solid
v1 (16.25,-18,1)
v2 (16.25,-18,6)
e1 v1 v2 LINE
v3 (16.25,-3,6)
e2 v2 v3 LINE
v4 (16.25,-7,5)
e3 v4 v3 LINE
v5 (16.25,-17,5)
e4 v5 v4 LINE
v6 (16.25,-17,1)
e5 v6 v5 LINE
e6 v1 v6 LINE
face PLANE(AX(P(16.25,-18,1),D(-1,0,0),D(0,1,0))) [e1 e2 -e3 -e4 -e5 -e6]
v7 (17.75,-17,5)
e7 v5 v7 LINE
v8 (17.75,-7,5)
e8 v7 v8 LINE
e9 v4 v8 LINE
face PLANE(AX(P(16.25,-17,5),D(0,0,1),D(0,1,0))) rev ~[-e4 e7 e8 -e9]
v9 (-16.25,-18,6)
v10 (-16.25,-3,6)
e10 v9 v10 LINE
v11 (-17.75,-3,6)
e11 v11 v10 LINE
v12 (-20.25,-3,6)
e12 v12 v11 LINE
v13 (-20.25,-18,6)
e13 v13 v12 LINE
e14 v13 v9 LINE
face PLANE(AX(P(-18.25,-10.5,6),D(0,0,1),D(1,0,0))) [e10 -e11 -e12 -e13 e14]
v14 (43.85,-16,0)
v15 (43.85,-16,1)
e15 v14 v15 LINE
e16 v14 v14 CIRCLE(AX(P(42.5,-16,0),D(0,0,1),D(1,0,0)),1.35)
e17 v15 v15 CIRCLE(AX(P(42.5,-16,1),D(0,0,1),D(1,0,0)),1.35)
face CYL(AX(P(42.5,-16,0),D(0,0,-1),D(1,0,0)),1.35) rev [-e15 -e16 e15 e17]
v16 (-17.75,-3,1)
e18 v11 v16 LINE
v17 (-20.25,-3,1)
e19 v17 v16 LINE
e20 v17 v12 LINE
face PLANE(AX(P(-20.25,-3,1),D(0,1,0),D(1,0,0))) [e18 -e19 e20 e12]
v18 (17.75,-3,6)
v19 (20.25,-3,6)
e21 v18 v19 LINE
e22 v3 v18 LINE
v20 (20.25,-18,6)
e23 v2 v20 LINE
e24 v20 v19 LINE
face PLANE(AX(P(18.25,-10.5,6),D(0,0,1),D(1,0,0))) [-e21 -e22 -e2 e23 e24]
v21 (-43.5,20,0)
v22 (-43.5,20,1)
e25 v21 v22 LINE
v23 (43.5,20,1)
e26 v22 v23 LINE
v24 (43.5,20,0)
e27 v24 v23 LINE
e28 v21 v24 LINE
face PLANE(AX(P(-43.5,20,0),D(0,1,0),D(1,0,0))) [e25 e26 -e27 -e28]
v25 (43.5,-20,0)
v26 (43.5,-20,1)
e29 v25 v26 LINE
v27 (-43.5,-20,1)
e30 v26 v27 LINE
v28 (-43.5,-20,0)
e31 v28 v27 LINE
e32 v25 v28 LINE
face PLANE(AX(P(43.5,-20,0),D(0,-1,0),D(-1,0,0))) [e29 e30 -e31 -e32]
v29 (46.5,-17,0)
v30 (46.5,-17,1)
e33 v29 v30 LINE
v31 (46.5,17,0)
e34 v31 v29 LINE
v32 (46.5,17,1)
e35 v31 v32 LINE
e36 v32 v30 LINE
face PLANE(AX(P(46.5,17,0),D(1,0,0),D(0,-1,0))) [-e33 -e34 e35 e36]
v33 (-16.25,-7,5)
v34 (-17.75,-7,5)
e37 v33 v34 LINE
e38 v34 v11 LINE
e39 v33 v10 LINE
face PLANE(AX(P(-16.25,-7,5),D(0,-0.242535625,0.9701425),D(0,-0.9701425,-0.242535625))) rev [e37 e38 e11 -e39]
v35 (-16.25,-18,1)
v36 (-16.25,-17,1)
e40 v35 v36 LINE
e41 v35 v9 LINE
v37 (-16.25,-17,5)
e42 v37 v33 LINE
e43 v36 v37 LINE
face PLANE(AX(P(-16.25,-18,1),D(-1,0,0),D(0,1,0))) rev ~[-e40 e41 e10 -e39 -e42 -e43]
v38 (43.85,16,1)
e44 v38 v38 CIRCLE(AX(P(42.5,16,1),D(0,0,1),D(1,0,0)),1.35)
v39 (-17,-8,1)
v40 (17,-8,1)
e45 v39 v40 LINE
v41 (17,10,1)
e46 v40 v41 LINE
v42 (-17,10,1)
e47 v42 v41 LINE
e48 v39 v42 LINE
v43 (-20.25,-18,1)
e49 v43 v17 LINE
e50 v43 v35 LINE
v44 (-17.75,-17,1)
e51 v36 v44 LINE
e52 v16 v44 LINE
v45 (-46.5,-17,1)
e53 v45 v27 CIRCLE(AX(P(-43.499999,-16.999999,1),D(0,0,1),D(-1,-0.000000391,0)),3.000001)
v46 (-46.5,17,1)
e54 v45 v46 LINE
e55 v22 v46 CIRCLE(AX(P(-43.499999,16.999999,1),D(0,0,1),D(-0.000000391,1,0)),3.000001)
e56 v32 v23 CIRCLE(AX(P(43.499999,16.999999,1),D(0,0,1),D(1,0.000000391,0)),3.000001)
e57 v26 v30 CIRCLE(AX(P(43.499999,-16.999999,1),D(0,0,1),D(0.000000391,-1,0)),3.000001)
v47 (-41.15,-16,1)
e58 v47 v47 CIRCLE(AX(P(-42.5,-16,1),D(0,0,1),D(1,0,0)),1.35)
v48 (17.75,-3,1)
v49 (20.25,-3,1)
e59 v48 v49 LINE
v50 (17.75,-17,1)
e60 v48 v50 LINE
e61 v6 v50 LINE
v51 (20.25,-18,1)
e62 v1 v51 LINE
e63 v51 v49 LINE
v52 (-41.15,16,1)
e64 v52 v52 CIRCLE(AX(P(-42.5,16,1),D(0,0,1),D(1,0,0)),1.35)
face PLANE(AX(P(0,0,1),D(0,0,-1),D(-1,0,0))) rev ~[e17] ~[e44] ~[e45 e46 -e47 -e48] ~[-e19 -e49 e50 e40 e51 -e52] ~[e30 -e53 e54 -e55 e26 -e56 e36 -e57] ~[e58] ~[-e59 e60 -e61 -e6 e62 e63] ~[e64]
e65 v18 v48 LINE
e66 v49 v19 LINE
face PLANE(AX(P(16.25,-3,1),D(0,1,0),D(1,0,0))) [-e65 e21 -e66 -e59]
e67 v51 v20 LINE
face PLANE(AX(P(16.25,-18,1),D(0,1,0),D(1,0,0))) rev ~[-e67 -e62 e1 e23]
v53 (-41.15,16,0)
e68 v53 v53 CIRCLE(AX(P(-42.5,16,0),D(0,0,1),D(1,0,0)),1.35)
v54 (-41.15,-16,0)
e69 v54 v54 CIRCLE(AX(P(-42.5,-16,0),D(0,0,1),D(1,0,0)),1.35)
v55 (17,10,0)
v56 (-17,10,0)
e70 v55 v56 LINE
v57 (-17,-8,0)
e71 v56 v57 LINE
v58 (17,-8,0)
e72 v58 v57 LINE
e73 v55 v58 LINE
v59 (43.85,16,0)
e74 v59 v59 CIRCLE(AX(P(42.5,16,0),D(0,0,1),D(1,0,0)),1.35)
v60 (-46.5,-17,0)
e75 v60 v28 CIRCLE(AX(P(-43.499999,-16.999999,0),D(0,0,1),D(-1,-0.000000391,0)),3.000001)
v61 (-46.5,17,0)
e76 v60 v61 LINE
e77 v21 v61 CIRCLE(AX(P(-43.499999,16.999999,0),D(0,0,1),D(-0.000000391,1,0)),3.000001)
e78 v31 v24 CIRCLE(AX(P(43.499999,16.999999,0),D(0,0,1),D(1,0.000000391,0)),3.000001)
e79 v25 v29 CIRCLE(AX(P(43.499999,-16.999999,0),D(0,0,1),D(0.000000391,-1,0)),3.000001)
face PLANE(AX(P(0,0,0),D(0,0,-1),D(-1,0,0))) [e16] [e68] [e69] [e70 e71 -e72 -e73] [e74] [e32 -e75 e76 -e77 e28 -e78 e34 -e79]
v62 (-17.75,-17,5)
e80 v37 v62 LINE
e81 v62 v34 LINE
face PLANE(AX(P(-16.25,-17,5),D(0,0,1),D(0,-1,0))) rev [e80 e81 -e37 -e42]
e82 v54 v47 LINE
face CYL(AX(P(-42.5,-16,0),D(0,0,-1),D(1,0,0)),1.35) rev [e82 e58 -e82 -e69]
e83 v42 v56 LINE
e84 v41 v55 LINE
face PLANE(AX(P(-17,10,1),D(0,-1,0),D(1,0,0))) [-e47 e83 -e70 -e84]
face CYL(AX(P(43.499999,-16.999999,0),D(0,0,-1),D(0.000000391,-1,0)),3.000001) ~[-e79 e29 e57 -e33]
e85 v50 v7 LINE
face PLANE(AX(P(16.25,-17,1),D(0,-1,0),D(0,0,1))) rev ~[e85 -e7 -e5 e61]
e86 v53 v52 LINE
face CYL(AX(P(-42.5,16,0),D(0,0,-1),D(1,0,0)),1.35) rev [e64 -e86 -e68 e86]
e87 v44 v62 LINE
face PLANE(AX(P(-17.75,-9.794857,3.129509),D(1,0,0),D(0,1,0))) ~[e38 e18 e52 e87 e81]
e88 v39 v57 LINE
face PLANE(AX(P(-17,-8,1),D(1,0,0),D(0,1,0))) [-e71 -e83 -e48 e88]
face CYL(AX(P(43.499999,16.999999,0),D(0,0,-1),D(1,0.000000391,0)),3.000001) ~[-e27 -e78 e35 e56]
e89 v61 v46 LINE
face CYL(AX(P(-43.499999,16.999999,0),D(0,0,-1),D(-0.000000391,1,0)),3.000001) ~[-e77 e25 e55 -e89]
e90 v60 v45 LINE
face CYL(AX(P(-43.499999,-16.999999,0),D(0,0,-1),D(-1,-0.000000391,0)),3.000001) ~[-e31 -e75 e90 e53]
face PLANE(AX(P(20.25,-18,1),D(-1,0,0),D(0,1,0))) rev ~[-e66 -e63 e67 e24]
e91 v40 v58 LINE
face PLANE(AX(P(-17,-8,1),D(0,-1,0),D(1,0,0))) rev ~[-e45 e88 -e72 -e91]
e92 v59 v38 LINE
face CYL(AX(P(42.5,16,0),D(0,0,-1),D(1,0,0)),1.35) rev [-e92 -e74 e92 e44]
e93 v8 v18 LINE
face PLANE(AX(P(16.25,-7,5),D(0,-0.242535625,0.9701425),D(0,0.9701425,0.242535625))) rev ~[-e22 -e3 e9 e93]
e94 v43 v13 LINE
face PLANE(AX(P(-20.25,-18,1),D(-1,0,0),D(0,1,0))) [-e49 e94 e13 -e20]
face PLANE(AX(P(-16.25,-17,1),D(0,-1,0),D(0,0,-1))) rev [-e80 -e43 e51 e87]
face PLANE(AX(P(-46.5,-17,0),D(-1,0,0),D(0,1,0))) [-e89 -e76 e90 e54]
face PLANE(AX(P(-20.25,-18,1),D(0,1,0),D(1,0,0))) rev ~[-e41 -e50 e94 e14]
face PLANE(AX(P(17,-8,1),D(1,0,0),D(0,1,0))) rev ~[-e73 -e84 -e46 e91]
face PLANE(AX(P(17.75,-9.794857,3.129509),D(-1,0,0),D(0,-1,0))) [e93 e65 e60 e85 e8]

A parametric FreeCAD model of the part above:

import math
import FreeCAD as App
import Part
import Sketcher
from FreeCAD import Vector

doc = App.newDocument("Part")
body = doc.addObject("PartDesign::Body", "Body")

# Sketch on XY plane
sketch1 = body.newObject("Sketcher::SketchObject", "Sketch")
sketch1.AttachmentSupport = (doc.getObject("XY_Plane"), [""])
sketch1.MapMode = "FlatFace"
sketch1.addGeometry([
    Part.LineSegment(Vector(43.5, 20, 0), Vector(-43.5, 20, 0)),  # 0
    Part.ArcOfCircle(Part.Circle(Vector(-43.5, 17, 0), Vector(0, 0, 1), 3), math.radians(90), math.radians(180)),  # 1
    Part.LineSegment(Vector(-46.5, 17, 0), Vector(-46.5, -17, 0)),  # 2
    Part.ArcOfCircle(Part.Circle(Vector(-43.5, -17, 0), Vector(0, 0, 1), 3), math.radians(-180), math.radians(-90)),  # 3
    Part.LineSegment(Vector(-43.5, -20, 0), Vector(43.5, -20, 0)),  # 4
    Part.ArcOfCircle(Part.Circle(Vector(43.5, -17, 0), Vector(0, 0, 1), 3), math.radians(-90), math.radians(0)),  # 5
    Part.LineSegment(Vector(46.5, -17, 0), Vector(46.5, 17, 0)),  # 6
    Part.ArcOfCircle(Part.Circle(Vector(43.5, 17, 0), Vector(0, 0, 1), 3), math.radians(0), math.radians(90)),  # 7
    Part.Circle(Vector(42.5, -16, 0), Vector(0, 0, 1), 1.4),  # 8
    Part.Circle(Vector(-42.5, -16, 0), Vector(0, 0, 1), 1.4),  # 9
    Part.Circle(Vector(42.5, 16, 0), Vector(0, 0, 1), 1.4),  # 10
    Part.Circle(Vector(-42.5, 16, 0), Vector(0, 0, 1), 1.4),  # 11
], False)
sketch1.addConstraint([
    Sketcher.Constraint("Tangent", 0, 2, 1, 1),
    Sketcher.Constraint("Tangent", 1, 2, 2, 1),
    Sketcher.Constraint("Tangent", 2, 2, 3, 1),
    Sketcher.Constraint("Tangent", 3, 2, 4, 1),
    Sketcher.Constraint("Tangent", 4, 2, 5, 1),
    Sketcher.Constraint("Tangent", 5, 2, 6, 1),
    Sketcher.Constraint("Tangent", 6, 2, 7, 1),
    Sketcher.Constraint("Tangent", 7, 2, 0, 1),
    Sketcher.Constraint("Horizontal", 0),
    Sketcher.Constraint("Vertical", 2),
    Sketcher.Constraint("Horizontal", 4),
    Sketcher.Constraint("Vertical", 6),
    Sketcher.Constraint("Equal", 1, 3),
    Sketcher.Constraint("Equal", 3, 5),
    Sketcher.Constraint("Equal", 5, 7),
    Sketcher.Constraint("Equal", 8, 9),
    Sketcher.Constraint("Equal", 9, 10),
    Sketcher.Constraint("Equal", 10, 11),
    Sketcher.Constraint("Symmetric", 1, 3, 5, 3, -1, 1),
    Sketcher.Constraint("Symmetric", 9, 3, 10, 3, -1, 1),
    Sketcher.Constraint("Symmetric", 8, 3, 11, 3, -1, 1),
    Sketcher.Constraint("Symmetric", 8, 3, 9, 3, -2),
    Sketcher.Constraint("Radius", 1, 3.000001),
    Sketcher.Constraint("Diameter", 8, 2.7),
    Sketcher.Constraint("DistanceX", 0, 2, 0, 1, 87.0),
    Sketcher.Constraint("DistanceY", 2, 2, 2, 1, 34.0),
    Sketcher.Constraint("DistanceY", 8, 3, -1, 1, 16.0),
    Sketcher.Constraint("DistanceX", 8, 3, 5, 3, 0.999999),
])
pad1 = body.newObject("PartDesign::Pad", "Pad")
pad1.Profile = sketch1
pad1.Length = 1

# Sketch on XY plane
sketch2 = body.newObject("Sketcher::SketchObject", "Sketch001")
sketch2.AttachmentSupport = (doc.getObject("XY_Plane"), [""])
sketch2.MapMode = "FlatFace"
sketch2.AttachmentOffset = App.Placement(Vector(0, 0, 1), App.Rotation())
sketch2.addGeometry([
    Part.LineSegment(Vector(16.2, -3, 0), Vector(16.2, -18, 0)),  # 0
    Part.LineSegment(Vector(16.2, -18, 0), Vector(20.2, -18, 0)),  # 1
    Part.LineSegment(Vector(20.2, -18, 0), Vector(20.2, -3, 0)),  # 2
    Part.LineSegment(Vector(20.2, -3, 0), Vector(16.2, -3, 0)),  # 3
    Part.LineSegment(Vector(-20.2, -3, 0), Vector(-20.2, -18, 0)),  # 4
    Part.LineSegment(Vector(-20.2, -18, 0), Vector(-16.2, -18, 0)),  # 5
    Part.LineSegment(Vector(-16.2, -18, 0), Vector(-16.2, -3, 0)),  # 6
    Part.LineSegment(Vector(-16.2, -3, 0), Vector(-20.2, -3, 0)),  # 7
], False)
sketch2.addConstraint([
    Sketcher.Constraint("Coincident", 0, 2, 1, 1),
    Sketcher.Constraint("Coincident", 1, 2, 2, 1),
    Sketcher.Constraint("Coincident", 2, 2, 3, 1),
    Sketcher.Constraint("Coincident", 3, 2, 0, 1),
    Sketcher.Constraint("Coincident", 4, 2, 5, 1),
    Sketcher.Constraint("Coincident", 5, 2, 6, 1),
    Sketcher.Constraint("Coincident", 6, 2, 7, 1),
    Sketcher.Constraint("Coincident", 7, 2, 4, 1),
    Sketcher.Constraint("Vertical", 0),
    Sketcher.Constraint("Horizontal", 1),
    Sketcher.Constraint("Vertical", 2),
    Sketcher.Constraint("Horizontal", 3),
    Sketcher.Constraint("Vertical", 4),
    Sketcher.Constraint("Horizontal", 5),
    Sketcher.Constraint("Vertical", 6),
    Sketcher.Constraint("Horizontal", 7),
    Sketcher.Constraint("Symmetric", 1, 2, 4, 2, -2),
    Sketcher.Constraint("Symmetric", 3, 2, 6, 2, -2),
    Sketcher.Constraint("DistanceX", 1, 1, 1, 2, 4.0),
    Sketcher.Constraint("DistanceY", 0, 2, 0, 1, 15.0),
    Sketcher.Constraint("DistanceY", 0, 2, -1, 1, 18.0),
    Sketcher.Constraint("DistanceX", 4, 2, 0, 2, 36.5),
])
pad2 = body.newObject("PartDesign::Pad", "Pad001")
pad2.Profile = sketch2
pad2.Length = 5

# Sketch on YZ plane
sketch3 = body.newObject("Sketcher::SketchObject", "Sketch002")
sketch3.AttachmentSupport = (doc.getObject("YZ_Plane"), [""])
sketch3.MapMode = "FlatFace"
sketch3.AttachmentOffset = App.Placement(Vector(0, 0, 16.25), App.Rotation())
sketch3.addGeometry([
    Part.LineSegment(Vector(-3, 6, 0), Vector(-3, 1, 0)),  # 0
    Part.LineSegment(Vector(-3, 1, 0), Vector(-17, 1, 0)),  # 1
    Part.LineSegment(Vector(-17, 1, 0), Vector(-17, 5, 0)),  # 2
    Part.LineSegment(Vector(-17, 5, 0), Vector(-7, 5, 0)),  # 3
    Part.LineSegment(Vector(-7, 5, 0), Vector(-3, 6, 0)),  # 4
], False)
sketch3.addConstraint([
    Sketcher.Constraint("Coincident", 0, 2, 1, 1),
    Sketcher.Constraint("Coincident", 1, 2, 2, 1),
    Sketcher.Constraint("Coincident", 2, 2, 3, 1),
    Sketcher.Constraint("Coincident", 3, 2, 4, 1),
    Sketcher.Constraint("Coincident", 4, 2, 0, 1),
    Sketcher.Constraint("Vertical", 0),
    Sketcher.Constraint("Horizontal", 1),
    Sketcher.Constraint("Vertical", 2),
    Sketcher.Constraint("Horizontal", 3),
    Sketcher.Constraint("DistanceX", 1, 2, 1, 1, 14.0),
    Sketcher.Constraint("DistanceX", 3, 1, 3, 2, 10.0),
    Sketcher.Constraint("DistanceY", 0, 2, 0, 1, 5.0),
    Sketcher.Constraint("DistanceY", 2, 1, 2, 2, 4.0),
    Sketcher.Constraint("DistanceX", 0, 2, -1, 1, 3.0),
    Sketcher.Constraint("DistanceY", -1, 1, 0, 2, 1.0),
])
pocket1 = body.newObject("PartDesign::Pocket", "Pocket")
pocket1.Profile = sketch3
pocket1.Length = 1.5
pocket1.Reversed = True
doc.recompute()

mirrored = body.newObject("PartDesign::Mirrored", "Mirrored")
mirrored.Originals = [pocket1]
mirrored.MirrorPlane = (doc.getObject("YZ_Plane"), [""])
body.Tip = mirrored

# Sketch on XY plane
sketch4 = body.newObject("Sketcher::SketchObject", "Sketch003")
sketch4.AttachmentSupport = (doc.getObject("XY_Plane"), [""])
sketch4.MapMode = "FlatFace"
sketch4.AttachmentOffset = App.Placement(Vector(0, 0, 1), App.Rotation())
sketch4.addGeometry([
    Part.LineSegment(Vector(-17, 10, 0), Vector(-17, -8, 0)),
    Part.LineSegment(Vector(-17, -8, 0), Vector(17, -8, 0)),
    Part.LineSegment(Vector(17, -8, 0), Vector(17, 10, 0)),
    Part.LineSegment(Vector(17, 10, 0), Vector(-17, 10, 0)),
], False)
sketch4.addConstraint([
    Sketcher.Constraint("Coincident", 0, 2, 1, 1),
    Sketcher.Constraint("Coincident", 1, 2, 2, 1),
    Sketcher.Constraint("Coincident", 2, 2, 3, 1),
    Sketcher.Constraint("Coincident", 3, 2, 0, 1),
    Sketcher.Constraint("Vertical", 0),
    Sketcher.Constraint("Horizontal", 1),
    Sketcher.Constraint("Vertical", 2),
    Sketcher.Constraint("Horizontal", 3),
    Sketcher.Constraint("DistanceX", 1, 1, 1, 2, 34.0),
    Sketcher.Constraint("DistanceY", 0, 2, 0, 1, 18.0),
    Sketcher.Constraint("DistanceX", 0, 2, -1, 1, 17.0),
    Sketcher.Constraint("DistanceY", 0, 2, -1, 1, 8.0),
])
pocket2 = body.newObject("PartDesign::Pocket", "Pocket001")
pocket2.Profile = sketch4
pocket2.Length = 5

doc.recompute()
